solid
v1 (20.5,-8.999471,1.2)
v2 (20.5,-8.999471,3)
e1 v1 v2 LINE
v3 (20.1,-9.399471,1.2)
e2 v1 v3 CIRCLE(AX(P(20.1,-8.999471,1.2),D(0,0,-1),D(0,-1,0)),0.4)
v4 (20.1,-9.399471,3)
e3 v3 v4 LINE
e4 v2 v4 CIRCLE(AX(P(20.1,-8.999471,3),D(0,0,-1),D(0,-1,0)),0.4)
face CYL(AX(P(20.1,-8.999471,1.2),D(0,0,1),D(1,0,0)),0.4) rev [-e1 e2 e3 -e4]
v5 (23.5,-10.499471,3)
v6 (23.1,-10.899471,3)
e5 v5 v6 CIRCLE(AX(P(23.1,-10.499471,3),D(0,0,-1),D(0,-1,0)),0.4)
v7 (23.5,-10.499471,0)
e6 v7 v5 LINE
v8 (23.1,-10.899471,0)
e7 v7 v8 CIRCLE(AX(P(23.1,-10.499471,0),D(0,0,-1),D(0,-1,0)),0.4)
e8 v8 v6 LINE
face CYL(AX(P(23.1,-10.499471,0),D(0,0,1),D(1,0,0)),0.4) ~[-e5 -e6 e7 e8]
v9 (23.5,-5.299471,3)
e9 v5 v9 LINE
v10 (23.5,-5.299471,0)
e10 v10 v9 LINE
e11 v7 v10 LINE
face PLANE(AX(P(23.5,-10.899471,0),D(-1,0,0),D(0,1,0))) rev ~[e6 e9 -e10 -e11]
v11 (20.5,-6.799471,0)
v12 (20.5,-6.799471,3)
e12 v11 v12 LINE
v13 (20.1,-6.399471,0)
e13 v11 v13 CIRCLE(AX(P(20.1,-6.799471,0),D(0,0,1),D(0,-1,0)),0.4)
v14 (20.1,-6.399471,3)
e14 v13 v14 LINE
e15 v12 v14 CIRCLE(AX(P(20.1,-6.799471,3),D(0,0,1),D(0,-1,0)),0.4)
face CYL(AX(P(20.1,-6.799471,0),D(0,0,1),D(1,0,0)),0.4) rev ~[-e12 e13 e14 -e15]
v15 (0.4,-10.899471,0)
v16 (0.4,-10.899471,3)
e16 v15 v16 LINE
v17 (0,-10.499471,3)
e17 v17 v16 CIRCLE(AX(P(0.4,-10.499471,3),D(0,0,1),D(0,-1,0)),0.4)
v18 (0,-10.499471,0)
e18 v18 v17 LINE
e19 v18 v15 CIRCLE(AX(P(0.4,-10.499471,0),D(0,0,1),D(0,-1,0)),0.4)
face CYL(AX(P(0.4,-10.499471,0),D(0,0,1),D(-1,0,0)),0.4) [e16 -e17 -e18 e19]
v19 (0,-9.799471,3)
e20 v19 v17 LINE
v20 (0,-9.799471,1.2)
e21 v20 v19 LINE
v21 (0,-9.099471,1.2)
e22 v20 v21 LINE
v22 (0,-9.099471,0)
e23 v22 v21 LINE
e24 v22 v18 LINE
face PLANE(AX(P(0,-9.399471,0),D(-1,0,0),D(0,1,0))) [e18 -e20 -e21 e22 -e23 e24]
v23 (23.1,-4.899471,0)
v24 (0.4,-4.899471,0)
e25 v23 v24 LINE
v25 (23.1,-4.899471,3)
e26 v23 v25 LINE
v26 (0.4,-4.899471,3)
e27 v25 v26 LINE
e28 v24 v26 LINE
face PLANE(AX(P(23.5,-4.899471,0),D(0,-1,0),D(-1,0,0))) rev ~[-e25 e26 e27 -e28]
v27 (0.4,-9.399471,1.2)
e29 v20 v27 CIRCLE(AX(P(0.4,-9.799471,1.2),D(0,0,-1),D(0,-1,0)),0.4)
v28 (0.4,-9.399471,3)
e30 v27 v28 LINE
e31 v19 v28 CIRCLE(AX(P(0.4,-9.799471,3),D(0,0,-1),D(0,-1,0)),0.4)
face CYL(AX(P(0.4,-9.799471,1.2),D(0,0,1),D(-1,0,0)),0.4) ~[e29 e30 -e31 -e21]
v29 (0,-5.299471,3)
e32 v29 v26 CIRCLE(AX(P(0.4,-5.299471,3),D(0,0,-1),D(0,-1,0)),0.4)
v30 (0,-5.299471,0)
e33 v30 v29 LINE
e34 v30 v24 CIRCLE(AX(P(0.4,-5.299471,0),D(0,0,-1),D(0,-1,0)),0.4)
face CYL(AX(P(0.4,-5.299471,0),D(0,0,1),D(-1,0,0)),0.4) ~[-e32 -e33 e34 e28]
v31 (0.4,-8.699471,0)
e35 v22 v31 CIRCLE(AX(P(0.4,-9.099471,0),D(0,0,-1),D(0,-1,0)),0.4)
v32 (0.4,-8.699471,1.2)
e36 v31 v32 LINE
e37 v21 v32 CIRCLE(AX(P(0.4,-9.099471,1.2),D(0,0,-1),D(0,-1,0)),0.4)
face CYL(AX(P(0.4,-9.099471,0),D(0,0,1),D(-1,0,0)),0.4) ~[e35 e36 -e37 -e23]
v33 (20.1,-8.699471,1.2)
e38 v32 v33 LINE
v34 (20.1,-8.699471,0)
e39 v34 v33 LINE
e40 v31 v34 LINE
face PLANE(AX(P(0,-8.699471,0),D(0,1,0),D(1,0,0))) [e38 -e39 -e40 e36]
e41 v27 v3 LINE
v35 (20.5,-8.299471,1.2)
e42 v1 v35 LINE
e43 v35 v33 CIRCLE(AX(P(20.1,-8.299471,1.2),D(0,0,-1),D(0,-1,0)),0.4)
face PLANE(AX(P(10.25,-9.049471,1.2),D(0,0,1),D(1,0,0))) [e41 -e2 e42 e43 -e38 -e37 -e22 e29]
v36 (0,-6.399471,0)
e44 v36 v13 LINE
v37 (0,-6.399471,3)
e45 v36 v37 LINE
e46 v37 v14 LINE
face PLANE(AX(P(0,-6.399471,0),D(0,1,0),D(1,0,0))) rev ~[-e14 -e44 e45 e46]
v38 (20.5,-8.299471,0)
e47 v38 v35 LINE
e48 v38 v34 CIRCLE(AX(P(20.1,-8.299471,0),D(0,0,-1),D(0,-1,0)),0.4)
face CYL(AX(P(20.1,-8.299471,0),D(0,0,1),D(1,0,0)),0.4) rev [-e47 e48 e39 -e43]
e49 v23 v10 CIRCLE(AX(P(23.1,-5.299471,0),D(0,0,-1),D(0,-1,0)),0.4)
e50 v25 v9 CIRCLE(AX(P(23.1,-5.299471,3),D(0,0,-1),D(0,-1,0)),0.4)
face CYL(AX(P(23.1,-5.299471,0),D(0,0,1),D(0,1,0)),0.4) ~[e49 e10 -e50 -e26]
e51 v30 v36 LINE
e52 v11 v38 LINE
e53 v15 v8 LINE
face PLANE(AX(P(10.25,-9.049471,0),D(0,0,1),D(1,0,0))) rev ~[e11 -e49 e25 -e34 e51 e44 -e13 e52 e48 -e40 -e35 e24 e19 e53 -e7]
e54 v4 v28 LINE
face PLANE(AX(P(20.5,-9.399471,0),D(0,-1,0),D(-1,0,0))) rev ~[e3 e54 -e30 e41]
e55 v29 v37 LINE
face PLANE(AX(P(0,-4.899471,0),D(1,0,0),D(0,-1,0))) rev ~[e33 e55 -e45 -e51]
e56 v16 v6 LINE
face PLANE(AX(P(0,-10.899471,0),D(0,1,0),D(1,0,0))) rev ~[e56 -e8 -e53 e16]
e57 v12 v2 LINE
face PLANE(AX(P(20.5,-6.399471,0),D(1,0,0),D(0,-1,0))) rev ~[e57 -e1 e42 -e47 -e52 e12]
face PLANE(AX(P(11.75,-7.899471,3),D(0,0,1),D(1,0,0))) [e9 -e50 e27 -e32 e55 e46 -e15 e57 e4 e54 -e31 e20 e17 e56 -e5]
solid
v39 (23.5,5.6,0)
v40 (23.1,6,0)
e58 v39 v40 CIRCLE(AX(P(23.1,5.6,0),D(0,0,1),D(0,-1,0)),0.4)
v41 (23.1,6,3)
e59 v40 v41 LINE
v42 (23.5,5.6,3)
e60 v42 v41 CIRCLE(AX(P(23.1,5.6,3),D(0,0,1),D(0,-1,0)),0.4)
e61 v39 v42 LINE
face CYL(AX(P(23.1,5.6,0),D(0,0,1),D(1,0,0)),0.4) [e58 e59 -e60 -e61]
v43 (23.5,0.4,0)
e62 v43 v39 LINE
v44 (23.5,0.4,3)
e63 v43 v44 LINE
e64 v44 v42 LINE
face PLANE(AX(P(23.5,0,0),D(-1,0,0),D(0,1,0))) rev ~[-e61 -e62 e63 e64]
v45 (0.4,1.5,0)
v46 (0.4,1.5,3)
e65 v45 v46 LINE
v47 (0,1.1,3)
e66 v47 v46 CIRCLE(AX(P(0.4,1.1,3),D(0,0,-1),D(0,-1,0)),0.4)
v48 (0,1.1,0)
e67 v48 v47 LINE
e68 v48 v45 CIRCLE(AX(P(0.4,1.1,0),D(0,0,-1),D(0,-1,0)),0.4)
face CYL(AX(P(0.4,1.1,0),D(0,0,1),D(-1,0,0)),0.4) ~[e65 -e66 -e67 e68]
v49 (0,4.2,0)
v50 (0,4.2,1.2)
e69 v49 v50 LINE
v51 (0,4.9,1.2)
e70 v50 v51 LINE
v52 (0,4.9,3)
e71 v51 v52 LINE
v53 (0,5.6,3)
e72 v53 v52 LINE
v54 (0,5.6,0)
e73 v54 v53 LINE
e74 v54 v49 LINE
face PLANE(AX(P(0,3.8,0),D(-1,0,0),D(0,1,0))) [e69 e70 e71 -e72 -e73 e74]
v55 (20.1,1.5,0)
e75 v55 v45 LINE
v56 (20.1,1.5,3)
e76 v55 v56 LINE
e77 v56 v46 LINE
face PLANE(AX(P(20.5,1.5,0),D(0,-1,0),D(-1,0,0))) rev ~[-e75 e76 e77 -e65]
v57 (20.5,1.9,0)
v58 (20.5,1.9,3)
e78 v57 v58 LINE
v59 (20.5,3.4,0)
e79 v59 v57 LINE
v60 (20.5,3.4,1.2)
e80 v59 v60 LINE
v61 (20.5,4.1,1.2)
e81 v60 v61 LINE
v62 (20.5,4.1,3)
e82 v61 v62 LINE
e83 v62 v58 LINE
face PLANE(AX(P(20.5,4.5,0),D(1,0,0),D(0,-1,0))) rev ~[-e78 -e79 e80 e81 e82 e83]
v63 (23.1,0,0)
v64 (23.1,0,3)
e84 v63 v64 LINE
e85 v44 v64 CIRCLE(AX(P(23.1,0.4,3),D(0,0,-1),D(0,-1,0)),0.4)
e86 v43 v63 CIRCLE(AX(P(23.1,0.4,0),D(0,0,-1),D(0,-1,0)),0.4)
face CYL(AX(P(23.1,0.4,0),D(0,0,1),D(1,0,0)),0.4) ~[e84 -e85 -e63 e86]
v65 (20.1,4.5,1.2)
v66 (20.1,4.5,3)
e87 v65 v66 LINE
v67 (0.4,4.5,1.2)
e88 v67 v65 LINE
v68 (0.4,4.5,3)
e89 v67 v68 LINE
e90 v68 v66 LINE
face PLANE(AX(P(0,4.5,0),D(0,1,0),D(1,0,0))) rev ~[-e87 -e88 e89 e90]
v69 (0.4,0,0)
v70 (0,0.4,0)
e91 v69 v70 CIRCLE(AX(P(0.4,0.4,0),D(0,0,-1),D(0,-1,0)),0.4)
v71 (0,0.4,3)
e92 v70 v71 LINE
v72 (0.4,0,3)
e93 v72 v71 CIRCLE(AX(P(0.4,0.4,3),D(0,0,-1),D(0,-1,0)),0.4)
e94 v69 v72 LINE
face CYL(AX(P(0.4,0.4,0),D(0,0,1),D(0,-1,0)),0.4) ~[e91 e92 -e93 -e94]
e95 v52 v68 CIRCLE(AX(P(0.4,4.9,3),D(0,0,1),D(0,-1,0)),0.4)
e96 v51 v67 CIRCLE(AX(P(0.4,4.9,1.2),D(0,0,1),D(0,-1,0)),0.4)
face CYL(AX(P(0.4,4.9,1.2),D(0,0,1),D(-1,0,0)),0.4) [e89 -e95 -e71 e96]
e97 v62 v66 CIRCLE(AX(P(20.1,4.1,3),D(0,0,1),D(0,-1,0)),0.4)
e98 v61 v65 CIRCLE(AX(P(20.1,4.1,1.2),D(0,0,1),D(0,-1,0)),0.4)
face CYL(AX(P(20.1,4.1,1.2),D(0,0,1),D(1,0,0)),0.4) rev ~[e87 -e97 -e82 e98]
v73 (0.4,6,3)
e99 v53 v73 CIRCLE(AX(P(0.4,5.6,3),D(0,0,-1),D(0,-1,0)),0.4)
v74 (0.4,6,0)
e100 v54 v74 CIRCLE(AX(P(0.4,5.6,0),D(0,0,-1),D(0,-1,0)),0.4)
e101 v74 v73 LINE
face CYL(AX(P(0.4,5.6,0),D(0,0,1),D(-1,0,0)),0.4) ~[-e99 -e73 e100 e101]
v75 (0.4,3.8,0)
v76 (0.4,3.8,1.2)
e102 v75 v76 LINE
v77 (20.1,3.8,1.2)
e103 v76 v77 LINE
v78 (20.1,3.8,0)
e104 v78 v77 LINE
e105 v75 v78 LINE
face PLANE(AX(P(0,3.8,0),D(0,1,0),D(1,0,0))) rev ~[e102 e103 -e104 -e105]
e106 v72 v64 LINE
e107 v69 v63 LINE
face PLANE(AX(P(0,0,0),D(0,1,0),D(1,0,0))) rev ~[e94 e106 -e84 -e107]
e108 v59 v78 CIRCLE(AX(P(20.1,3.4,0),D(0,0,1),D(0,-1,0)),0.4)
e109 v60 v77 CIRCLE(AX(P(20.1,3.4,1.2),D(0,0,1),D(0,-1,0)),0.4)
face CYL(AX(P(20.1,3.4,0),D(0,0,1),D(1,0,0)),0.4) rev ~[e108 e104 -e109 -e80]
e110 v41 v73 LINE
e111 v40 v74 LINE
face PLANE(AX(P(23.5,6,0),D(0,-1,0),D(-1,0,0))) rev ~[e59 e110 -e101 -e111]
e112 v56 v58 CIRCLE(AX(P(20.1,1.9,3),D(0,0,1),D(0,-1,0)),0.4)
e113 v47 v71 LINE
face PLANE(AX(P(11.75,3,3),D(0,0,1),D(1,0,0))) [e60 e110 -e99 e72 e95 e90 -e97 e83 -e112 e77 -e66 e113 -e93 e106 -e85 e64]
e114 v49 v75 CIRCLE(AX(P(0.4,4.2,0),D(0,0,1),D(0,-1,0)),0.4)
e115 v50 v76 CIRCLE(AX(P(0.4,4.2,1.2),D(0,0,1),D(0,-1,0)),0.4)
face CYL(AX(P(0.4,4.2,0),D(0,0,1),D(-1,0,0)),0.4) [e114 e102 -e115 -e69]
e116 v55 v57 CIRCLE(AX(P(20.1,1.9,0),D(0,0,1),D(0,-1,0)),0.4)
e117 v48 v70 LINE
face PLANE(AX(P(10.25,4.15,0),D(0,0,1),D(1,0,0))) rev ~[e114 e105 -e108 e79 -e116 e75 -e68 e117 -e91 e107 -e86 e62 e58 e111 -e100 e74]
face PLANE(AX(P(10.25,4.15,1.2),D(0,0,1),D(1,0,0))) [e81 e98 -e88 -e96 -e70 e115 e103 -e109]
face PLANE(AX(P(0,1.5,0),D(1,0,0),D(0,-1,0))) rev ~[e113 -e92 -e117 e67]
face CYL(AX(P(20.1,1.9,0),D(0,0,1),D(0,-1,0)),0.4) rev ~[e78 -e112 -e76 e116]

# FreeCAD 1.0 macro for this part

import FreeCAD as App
import Part
import Sketcher
from FreeCAD import Vector


def edges_at(feature, points):
    """Names of the edges that pass closest to the given points."""
    edges = feature.Shape.Edges
    near = lambda p: min(range(len(edges)), key=lambda i: edges[i].distToShape(Part.Vertex(*p))[0])
    return sorted({f"Edge{near(p) + 1}" for p in points})

doc = App.newDocument("Part")
body = doc.addObject("PartDesign::Body", "Body")

sketch1 = body.newObject("Sketcher::SketchObject", "Sketch")
sketch1.AttachmentSupport = (doc.getObject("XY_Plane"), [""])
sketch1.MapMode = "FlatFace"
sketch1.addGeometry([
    Part.LineSegment(Vector(0, 1.5, 0), Vector(0, 0, 0)),
    Part.LineSegment(Vector(0, 0, 0), Vector(23.5, 0, 0)),
    Part.LineSegment(Vector(23.5, 0, 0), Vector(23.5, 6, 0)),
    Part.LineSegment(Vector(23.5, 6, 0), Vector(0, 6, 0)),
    Part.LineSegment(Vector(0, 6, 0), Vector(0, 4.5, 0)),
    Part.LineSegment(Vector(0, 4.5, 0), Vector(20.5, 4.5, 0)),
    Part.LineSegment(Vector(20.5, 4.5, 0), Vector(20.5, 1.5, 0)),
    Part.LineSegment(Vector(20.5, 1.5, 0), Vector(0, 1.5, 0)),
], False)
sketch1.addConstraint([
    Sketcher.Constraint("Coincident", 0, 2, 1, 1),
    Sketcher.Constraint("Coincident", 1, 2, 2, 1),
    Sketcher.Constraint("Coincident", 2, 2, 3, 1),
    Sketcher.Constraint("Coincident", 3, 2, 4, 1),
    Sketcher.Constraint("Coincident", 4, 2, 5, 1),
    Sketcher.Constraint("Coincident", 5, 2, 6, 1),
    Sketcher.Constraint("Coincident", 6, 2, 7, 1),
    Sketcher.Constraint("Coincident", 7, 2, 0, 1),
    Sketcher.Constraint("Vertical", 0),
    Sketcher.Constraint("Horizontal", 1),
    Sketcher.Constraint("Vertical", 2),
    Sketcher.Constraint("Horizontal", 3),
    Sketcher.Constraint("Vertical", 4),
    Sketcher.Constraint("Horizontal", 5),
    Sketcher.Constraint("Vertical", 6),
    Sketcher.Constraint("Horizontal", 7),
    Sketcher.Constraint("Coincident", 0, 2, -1, 1),
    Sketcher.Constraint("PointOnObject", 3, 2, -2),
    Sketcher.Constraint("Equal", 0, 4),
    Sketcher.Constraint("DistanceY", 2, 1, 2, 2, 6.0),
    Sketcher.Constraint("DistanceY", 6, 2, 6, 1, 3.0),
    Sketcher.Constraint("DistanceX", 1, 1, 1, 2, 23.5),
    Sketcher.Constraint("DistanceX", 5, 1, 5, 2, 20.5),
])
pad1 = body.newObject("PartDesign::Pad", "Pad")
pad1.Profile = sketch1
pad1.Length = 3
body2 = doc.addObject("PartDesign::Body", "Body001")

sketch2 = body2.newObject("Sketcher::SketchObject", "Sketch001")
sketch2.AttachmentSupport = (doc.getObject("XY_Plane001"), [""])
sketch2.MapMode = "FlatFace"
sketch2.addGeometry([
    Part.LineSegment(Vector(20.5, -9.4, 0), Vector(0, -9.4, 0)),
    Part.LineSegment(Vector(0, -9.4, 0), Vector(0, -10.9, 0)),
    Part.LineSegment(Vector(0, -10.9, 0), Vector(23.5, -10.9, 0)),
    Part.LineSegment(Vector(23.5, -10.9, 0), Vector(23.5, -4.9, 0)),
    Part.LineSegment(Vector(23.5, -4.9, 0), Vector(0, -4.9, 0)),
    Part.LineSegment(Vector(0, -4.9, 0), Vector(0, -6.4, 0)),
    Part.LineSegment(Vector(0, -6.4, 0), Vector(20.5, -6.4, 0)),
    Part.LineSegment(Vector(20.5, -6.4, 0), Vector(20.5, -9.4, 0)),
], False)
sketch2.addConstraint([
    Sketcher.Constraint("Coincident", 0, 2, 1, 1),
    Sketcher.Constraint("Coincident", 1, 2, 2, 1),
    Sketcher.Constraint("Coincident", 2, 2, 3, 1),
    Sketcher.Constraint("Coincident", 3, 2, 4, 1),
    Sketcher.Constraint("Coincident", 4, 2, 5, 1),
    Sketcher.Constraint("Coincident", 5, 2, 6, 1),
    Sketcher.Constraint("Coincident", 6, 2, 7, 1),
    Sketcher.Constraint("Coincident", 7, 2, 0, 1),
    Sketcher.Constraint("Horizontal", 0),
    Sketcher.Constraint("Vertical", 1),
    Sketcher.Constraint("Horizontal", 2),
    Sketcher.Constraint("Vertical", 3),
    Sketcher.Constraint("Horizontal", 4),
    Sketcher.Constraint("Vertical", 5),
    Sketcher.Constraint("Horizontal", 6),
    Sketcher.Constraint("Vertical", 7),
    Sketcher.Constraint("PointOnObject", 0, 2, -2),
    Sketcher.Constraint("PointOnObject", 4, 2, -2),
    Sketcher.Constraint("Equal", 1, 5),
    Sketcher.Constraint("DistanceY", 3, 1, 3, 2, 6.0),
    Sketcher.Constraint("DistanceY", 7, 2, 7, 1, 3.0),
    Sketcher.Constraint("DistanceX", 0, 2, 0, 1, 20.5),
    Sketcher.Constraint("DistanceX", 2, 1, 2, 2, 23.5),
    Sketcher.Constraint("DistanceY", 0, 2, -1, 1, 9.399471),
])
pad2 = body2.newObject("PartDesign::Pad", "Pad001")
pad2.Profile = sketch2
pad2.Length = 3
body.AllowCompound = True
doc.recompute()

boolean = body.newObject("PartDesign::Boolean", "Boolean")
boolean.Type = "Fuse"
boolean.addObjects([body2])

sketch3 = body.newObject("Sketcher::SketchObject", "Sketch002")
sketch3.AttachmentSupport = (doc.getObject("XY_Plane"), [""])
sketch3.MapMode = "FlatFace"
sketch3.addGeometry([
    Part.LineSegment(Vector(0, -8.7, 0), Vector(0, -9.4, 0)),
    Part.LineSegment(Vector(0, -9.4, 0), Vector(20.5, -9.4, 0)),
    Part.LineSegment(Vector(20.5, -9.4, 0), Vector(20.5, -8.7, 0)),
    Part.LineSegment(Vector(20.5, -8.7, 0), Vector(0, -8.7, 0)),
    Part.LineSegment(Vector(0, 4.5, 0), Vector(0, 3.8, 0)),
    Part.LineSegment(Vector(0, 3.8, 0), Vector(20.5, 3.8, 0)),
    Part.LineSegment(Vector(20.5, 3.8, 0), Vector(20.5, 4.5, 0)),
    Part.LineSegment(Vector(20.5, 4.5, 0), Vector(0, 4.5, 0)),
], False)
sketch3.addConstraint([
    Sketcher.Constraint("Coincident", 0, 2, 1, 1),
    Sketcher.Constraint("Coincident", 1, 2, 2, 1),
    Sketcher.Constraint("Coincident", 2, 2, 3, 1),
    Sketcher.Constraint("Coincident", 3, 2, 0, 1),
    Sketcher.Constraint("Coincident", 4, 2, 5, 1),
    Sketcher.Constraint("Coincident", 5, 2, 6, 1),
    Sketcher.Constraint("Coincident", 6, 2, 7, 1),
    Sketcher.Constraint("Coincident", 7, 2, 4, 1),
    Sketcher.Constraint("Vertical", 0),
    Sketcher.Constraint("Horizontal", 1),
    Sketcher.Constraint("Vertical", 2),
    Sketcher.Constraint("Horizontal", 3),
    Sketcher.Constraint("Vertical", 4),
    Sketcher.Constraint("Horizontal", 5),
    Sketcher.Constraint("Vertical", 6),
    Sketcher.Constraint("Horizontal", 7),
    Sketcher.Constraint("PointOnObject", 0, 2, -2),
    Sketcher.Constraint("PointOnObject", 4, 2, -2),
    Sketcher.Constraint("Vertical", 2, 2, 5, 2),
    Sketcher.Constraint("Equal", 2, 4),
    Sketcher.Constraint("DistanceX", 1, 1, 1, 2, 20.5),
    Sketcher.Constraint("DistanceY", 0, 2, 0, 1, 0.7),
    Sketcher.Constraint("DistanceY", -1, 1, 4, 2, 3.8),
    Sketcher.Constraint("DistanceY", 0, 2, -1, 1, 9.399471),
])
pad3 = body.newObject("PartDesign::Pad", "Pad002")
pad3.Profile = sketch3
pad3.Length = 1.2
doc.recompute()

fillet = body.newObject("PartDesign::Fillet", "Fillet")
fillet.Base = (pad3, edges_at(pad3, [
    (0, 4.5, 2.1),
    (0, 6, 1.5),
    (23.5, 6, 1.5),
    (23.5, 0, 1.5),
    (0, 0, 1.5),
    (0, 1.5, 1.5),
    (20.5, 1.5, 1.5),
    (20.5, 4.5, 2.1),
    (0, 3.8, 0.6),
    (20.5, 3.8, 0.6),
]))
fillet.Radius = 0.4
doc.recompute()

fillet2 = body.newObject("PartDesign::Fillet", "Fillet001")
fillet2.Base = (fillet, edges_at(fillet, [
    (23.5, -4.899, 1.5),
    (23.5, -10.899, 1.5),
    (0, -10.899, 1.5),
    (0, -9.399, 2.1),
    (20.5, -9.399, 2.1),
    (20.5, -6.399, 1.5),
    (0, -4.899, 1.5),
    (0, -8.699, 0.6),
    (20.5, -8.699, 0.6),
]))
fillet2.Radius = 0.4

doc.recompute()
